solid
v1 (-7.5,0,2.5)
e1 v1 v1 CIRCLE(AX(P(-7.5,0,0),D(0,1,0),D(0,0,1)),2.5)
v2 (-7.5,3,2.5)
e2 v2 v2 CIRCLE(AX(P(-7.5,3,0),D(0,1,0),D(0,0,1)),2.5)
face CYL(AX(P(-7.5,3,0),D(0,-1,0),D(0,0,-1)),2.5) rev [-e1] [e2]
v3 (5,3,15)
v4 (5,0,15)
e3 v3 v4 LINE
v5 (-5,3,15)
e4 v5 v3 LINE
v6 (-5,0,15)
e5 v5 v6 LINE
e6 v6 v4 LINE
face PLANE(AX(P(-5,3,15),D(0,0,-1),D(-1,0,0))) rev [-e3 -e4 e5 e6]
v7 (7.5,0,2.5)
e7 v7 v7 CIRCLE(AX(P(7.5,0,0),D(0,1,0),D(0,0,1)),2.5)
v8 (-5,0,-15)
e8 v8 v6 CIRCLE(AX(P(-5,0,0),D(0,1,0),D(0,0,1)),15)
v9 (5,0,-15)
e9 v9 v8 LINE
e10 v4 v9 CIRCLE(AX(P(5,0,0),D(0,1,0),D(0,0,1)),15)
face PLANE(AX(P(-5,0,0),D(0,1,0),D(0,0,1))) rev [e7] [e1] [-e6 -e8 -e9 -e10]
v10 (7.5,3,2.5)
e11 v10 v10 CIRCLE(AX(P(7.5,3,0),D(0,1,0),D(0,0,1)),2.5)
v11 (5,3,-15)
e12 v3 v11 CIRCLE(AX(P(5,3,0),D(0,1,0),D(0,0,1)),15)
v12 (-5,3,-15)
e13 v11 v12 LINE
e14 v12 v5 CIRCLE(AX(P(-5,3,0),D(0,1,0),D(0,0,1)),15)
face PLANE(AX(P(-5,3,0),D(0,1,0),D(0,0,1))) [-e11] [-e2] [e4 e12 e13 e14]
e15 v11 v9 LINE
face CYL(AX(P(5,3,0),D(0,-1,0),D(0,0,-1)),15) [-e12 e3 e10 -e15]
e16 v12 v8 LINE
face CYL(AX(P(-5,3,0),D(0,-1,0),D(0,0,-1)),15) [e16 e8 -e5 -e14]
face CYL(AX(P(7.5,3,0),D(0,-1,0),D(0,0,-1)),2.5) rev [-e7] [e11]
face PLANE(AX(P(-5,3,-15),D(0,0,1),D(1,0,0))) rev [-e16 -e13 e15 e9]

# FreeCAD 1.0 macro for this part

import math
import FreeCAD as App
import Part
import Sketcher
from FreeCAD import Vector

doc = App.newDocument("Part")
params = doc.addObject("Spreadsheet::Sheet", "Params")
for row, (alias, value) in enumerate([
    ("sketch1_diameter", "5 mm"),
    ("sketch1_radius", "15 mm"),
    ("sketch1_width", "10 mm"),
    ("pad1_length", "3 mm"),
], start=1):
    params.set(f"A{row}", alias)
    params.set(f"B{row}", "=" + value)
    params.setAlias(f"B{row}", alias)

body = doc.addObject("PartDesign::Body", "Body")

sketch1 = doc.addObject("Sketcher::SketchObject", "Sketch")
body.addObject(sketch1)
sketch1.AttachmentSupport = (doc.XZ_Plane, [""])
sketch1.MapMode = "FlatFace"
sketch1.addGeometry([
    Part.LineSegment(Vector(5, -15, 0), Vector(-5, -15, 0)),
    Part.ArcOfCircle(Part.Circle(Vector(-5, 0, 0), Vector(0, 0, 1), 15), math.radians(90), math.radians(270)),
    Part.LineSegment(Vector(-5, 15, 0), Vector(5, 15, 0)),
    Part.ArcOfCircle(Part.Circle(Vector(5, 0, 0), Vector(0, 0, 1), 15), math.radians(-90), math.radians(90)),
    Part.Circle(Vector(7.5, 0, 0), Vector(0, 0, 1), 2.5),
    Part.Circle(Vector(-7.5, 0, 0), Vector(0, 0, 1), 2.5),
], False)
sketch1.addConstraint([
    Sketcher.Constraint("Tangent", 0, 2, 1, 2),
    Sketcher.Constraint("Tangent", 1, 1, 2, 1),
    Sketcher.Constraint("Tangent", 2, 2, 3, 2),
    Sketcher.Constraint("Tangent", 3, 1, 0, 1),
    Sketcher.Constraint("Horizontal", 0),
    Sketcher.Constraint("Horizontal", 2),
    Sketcher.Constraint("Equal", 4, 5),
    Sketcher.Constraint("Symmetric", 1, 3, 3, 3, -1, 1),
    Sketcher.Constraint("Symmetric", 4, 3, 5, 3, -1, 1),
    Sketcher.Constraint("PointOnObject", 4, 3, -1),
    Sketcher.Constraint("Diameter", 4, 5.0),
    Sketcher.Constraint("Radius", 1, 15.0),
    Sketcher.Constraint("DistanceX", 0, 2, 0, 1, 10.0),
    Sketcher.Constraint("DistanceX", 5, 3, 4, 3, 15.0),
])
sketch1.setExpression("Constraints[10]", "Params.sketch1_diameter")
sketch1.setExpression("Constraints[11]", "Params.sketch1_radius")
sketch1.setExpression("Constraints[12]", "Params.sketch1_width")
pad1 = doc.addObject("PartDesign::Pad", "Pad")
body.addObject(pad1)
pad1.Profile = sketch1
pad1.setExpression("Length", "Params.pad1_length")
pad1.Reversed = True

doc.recompute()
